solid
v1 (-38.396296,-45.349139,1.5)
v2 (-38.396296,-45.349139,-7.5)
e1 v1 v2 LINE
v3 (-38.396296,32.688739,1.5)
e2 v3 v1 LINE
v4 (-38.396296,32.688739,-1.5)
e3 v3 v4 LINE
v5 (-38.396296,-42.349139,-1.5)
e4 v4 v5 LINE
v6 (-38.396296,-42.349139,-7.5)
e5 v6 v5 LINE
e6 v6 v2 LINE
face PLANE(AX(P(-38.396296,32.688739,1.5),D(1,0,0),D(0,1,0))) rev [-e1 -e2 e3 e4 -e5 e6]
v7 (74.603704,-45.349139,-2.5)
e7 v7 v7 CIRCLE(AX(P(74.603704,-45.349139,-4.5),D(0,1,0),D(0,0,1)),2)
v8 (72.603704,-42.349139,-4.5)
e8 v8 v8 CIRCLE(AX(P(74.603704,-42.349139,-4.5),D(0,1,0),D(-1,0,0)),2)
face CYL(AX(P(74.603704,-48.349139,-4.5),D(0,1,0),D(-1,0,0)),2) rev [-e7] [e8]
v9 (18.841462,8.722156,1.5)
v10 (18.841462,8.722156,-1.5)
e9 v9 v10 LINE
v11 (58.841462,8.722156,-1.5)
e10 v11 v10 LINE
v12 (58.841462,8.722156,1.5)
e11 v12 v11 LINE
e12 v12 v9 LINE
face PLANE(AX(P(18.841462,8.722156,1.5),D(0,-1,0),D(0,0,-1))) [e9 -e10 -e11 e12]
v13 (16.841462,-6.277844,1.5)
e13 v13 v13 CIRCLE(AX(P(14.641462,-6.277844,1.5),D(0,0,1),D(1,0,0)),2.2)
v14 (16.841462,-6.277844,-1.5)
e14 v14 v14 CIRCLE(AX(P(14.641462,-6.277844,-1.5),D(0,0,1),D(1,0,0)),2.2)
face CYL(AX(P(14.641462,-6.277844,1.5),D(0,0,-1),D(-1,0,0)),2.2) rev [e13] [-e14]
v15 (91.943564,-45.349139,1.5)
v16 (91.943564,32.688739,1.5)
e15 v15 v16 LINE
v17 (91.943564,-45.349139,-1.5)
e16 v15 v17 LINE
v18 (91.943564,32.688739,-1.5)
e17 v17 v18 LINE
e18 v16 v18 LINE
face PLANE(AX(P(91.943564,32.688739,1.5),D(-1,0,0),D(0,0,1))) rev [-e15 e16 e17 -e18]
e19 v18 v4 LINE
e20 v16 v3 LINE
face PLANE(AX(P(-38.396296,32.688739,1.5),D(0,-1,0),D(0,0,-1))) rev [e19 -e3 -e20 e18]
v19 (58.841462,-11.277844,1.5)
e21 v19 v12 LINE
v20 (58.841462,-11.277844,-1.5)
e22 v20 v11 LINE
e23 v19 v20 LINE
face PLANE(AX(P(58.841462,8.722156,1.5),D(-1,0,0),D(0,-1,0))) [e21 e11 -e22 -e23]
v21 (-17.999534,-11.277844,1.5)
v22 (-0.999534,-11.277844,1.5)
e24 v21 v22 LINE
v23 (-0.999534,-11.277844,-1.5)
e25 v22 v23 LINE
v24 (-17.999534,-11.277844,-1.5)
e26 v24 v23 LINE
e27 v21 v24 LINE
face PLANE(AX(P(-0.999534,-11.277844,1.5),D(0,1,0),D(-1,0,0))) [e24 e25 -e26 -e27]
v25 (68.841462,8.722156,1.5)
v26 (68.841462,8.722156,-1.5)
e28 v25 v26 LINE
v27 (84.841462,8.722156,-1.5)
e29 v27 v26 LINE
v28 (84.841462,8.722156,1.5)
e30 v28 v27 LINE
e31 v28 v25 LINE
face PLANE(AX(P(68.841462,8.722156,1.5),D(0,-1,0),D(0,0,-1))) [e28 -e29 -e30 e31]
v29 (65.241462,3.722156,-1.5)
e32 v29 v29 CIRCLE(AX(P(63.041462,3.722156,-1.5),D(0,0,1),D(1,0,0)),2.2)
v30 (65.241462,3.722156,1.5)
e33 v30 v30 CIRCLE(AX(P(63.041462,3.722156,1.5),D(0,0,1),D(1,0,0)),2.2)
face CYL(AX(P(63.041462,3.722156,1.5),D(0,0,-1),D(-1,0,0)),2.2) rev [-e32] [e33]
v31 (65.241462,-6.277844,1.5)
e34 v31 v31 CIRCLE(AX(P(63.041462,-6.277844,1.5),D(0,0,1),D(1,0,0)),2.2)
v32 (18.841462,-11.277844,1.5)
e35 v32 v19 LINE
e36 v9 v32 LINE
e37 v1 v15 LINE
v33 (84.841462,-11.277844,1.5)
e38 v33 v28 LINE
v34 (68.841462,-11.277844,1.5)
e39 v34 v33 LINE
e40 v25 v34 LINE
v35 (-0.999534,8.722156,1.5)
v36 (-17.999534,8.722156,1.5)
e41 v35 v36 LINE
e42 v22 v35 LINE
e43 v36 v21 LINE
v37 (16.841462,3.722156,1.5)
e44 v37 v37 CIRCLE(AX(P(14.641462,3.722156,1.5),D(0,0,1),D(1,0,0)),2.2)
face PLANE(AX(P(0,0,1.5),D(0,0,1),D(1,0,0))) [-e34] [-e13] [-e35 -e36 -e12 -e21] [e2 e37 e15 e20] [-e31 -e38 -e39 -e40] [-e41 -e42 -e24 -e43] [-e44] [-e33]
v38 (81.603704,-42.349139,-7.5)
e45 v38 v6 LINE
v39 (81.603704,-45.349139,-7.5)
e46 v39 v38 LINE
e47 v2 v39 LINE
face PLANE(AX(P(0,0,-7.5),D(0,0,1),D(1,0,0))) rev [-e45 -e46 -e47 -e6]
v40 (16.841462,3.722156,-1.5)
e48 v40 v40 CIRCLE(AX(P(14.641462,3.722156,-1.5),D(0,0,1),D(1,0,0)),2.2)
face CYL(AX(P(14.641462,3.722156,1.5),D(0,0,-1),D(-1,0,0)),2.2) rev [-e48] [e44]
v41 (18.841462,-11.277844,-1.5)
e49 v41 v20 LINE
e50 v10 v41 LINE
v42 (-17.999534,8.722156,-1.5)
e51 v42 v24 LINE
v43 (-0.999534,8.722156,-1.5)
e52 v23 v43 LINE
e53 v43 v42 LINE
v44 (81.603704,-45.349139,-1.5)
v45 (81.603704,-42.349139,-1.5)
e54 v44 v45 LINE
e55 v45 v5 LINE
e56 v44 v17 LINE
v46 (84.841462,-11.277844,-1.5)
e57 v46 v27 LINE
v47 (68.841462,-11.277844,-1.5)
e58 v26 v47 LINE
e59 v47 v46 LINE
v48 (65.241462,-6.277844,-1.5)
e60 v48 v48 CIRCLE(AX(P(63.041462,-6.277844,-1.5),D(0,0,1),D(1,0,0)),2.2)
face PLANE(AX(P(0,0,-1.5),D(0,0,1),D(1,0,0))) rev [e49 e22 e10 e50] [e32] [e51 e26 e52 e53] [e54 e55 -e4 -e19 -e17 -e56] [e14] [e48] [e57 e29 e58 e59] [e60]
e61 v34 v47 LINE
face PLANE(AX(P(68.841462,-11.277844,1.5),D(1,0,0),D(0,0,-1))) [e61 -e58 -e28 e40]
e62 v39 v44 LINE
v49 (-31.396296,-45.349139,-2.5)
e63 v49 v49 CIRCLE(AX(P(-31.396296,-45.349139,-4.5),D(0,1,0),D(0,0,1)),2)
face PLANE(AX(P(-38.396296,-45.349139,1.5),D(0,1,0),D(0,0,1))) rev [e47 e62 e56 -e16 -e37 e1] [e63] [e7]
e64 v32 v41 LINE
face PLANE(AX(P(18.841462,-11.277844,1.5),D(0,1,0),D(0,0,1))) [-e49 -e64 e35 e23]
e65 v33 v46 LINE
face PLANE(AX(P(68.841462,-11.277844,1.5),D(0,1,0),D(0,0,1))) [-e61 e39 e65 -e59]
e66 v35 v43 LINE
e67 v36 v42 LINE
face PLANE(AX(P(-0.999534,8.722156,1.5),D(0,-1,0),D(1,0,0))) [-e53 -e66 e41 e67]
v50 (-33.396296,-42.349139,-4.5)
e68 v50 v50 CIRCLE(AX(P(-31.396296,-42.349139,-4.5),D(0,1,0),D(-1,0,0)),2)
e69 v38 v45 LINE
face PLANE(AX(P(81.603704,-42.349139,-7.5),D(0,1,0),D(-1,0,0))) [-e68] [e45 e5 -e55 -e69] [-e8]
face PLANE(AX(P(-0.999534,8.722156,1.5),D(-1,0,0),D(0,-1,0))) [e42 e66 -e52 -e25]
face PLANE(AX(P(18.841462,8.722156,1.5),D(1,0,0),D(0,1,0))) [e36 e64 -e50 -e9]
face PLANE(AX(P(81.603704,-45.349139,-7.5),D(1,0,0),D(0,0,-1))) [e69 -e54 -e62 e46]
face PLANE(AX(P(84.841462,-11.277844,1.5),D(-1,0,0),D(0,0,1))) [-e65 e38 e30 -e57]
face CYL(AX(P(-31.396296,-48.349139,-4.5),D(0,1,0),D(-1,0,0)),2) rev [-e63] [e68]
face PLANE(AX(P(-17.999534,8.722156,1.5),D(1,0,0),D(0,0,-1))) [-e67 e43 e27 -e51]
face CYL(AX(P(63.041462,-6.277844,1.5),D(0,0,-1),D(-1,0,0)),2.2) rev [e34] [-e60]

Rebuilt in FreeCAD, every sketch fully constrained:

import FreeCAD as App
import Part
import Sketcher
from FreeCAD import Vector


def add_polygon(sketch, points):
    """Adds a closed chain of lines whose ends are joined by coincident constraints."""
    first, n = sketch.GeometryCount, len(points)
    for a, b in zip(points, points[1:] + points[:1]):
        sketch.addGeometry(Part.LineSegment(App.Vector(*a, 0), App.Vector(*b, 0)), False)
    for i in range(n):
        sketch.addConstraint(Sketcher.Constraint("Coincident", first + i, 2, first + (i + 1) % n, 1))

doc = App.newDocument("Part")
params = doc.addObject("Spreadsheet::Sheet", "Params")
for row, (alias, value) in enumerate([
    ("sketch1_diameter", "4.4 mm"),
    ("sketch1_width", "17 mm"),
    ("sketch1_width2", "40 mm"),
    ("sketch1_width3", "16 mm"),
    ("sketch1_height", "20 mm"),
    ("pad1_length", "3 mm"),
    ("sketch2_width", "120 mm"),
    ("sketch2_height", "3 mm"),
    ("pad2_length", "9 mm"),
    ("sketch3_diameter", "4 mm"),
    ("pocket1_length", "6 mm"),
], start=1):
    params.set(f"A{row}", alias)
    params.set(f"B{row}", "=" + value)
    params.setAlias(f"B{row}", alias)

body = doc.addObject("PartDesign::Body", "Body")

# Sketch on XY plane
sketch1 = doc.addObject("Sketcher::SketchObject", "Sketch")
body.addObject(sketch1)
sketch1.AttachmentSupport = (doc.XY_Plane, [""])
sketch1.MapMode = "FlatFace"
add_polygon(sketch1, [(-38.396296, 32.688739), (-38.396296, -45.349139), (91.943564, -45.349139), (91.943564, 32.688739)])  # lines 0-3
add_polygon(sketch1, [(-0.999534, -11.277844), (-17.999534, -11.277844), (-17.999534, 8.722156), (-0.999534, 8.722156)])  # lines 4-7
sketch1.addGeometry(Part.Circle(Vector(14.641462, -6.277844, 0), Vector(0, 0, 1), 2.2), False)  # 8
sketch1.addGeometry(Part.Circle(Vector(63.041462, -6.277844, 0), Vector(0, 0, 1), 2.2), False)  # 9
sketch1.addGeometry(Part.Circle(Vector(14.641462, 3.722156, 0), Vector(0, 0, 1), 2.2), False)  # 10
add_polygon(sketch1, [(58.841462, -11.277844), (18.841462, -11.277844), (18.841462, 8.722156), (58.841462, 8.722156)])  # lines 11-14
add_polygon(sketch1, [(84.841462, -11.277844), (68.841462, -11.277844), (68.841462, 8.722156), (84.841462, 8.722156)])  # lines 15-18
sketch1.addGeometry(Part.Circle(Vector(63.041462, 3.722156, 0), Vector(0, 0, 1), 2.2), False)  # 19
sketch1.addConstraint([
    Sketcher.Constraint("Vertical", 0),
    Sketcher.Constraint("Horizontal", 1),
    Sketcher.Constraint("Vertical", 2),
    Sketcher.Constraint("Horizontal", 3),
    Sketcher.Constraint("Horizontal", 4),
    Sketcher.Constraint("Vertical", 5),
    Sketcher.Constraint("Horizontal", 6),
    Sketcher.Constraint("Vertical", 7),
    Sketcher.Constraint("Horizontal", 11),
    Sketcher.Constraint("Vertical", 12),
    Sketcher.Constraint("Horizontal", 13),
    Sketcher.Constraint("Vertical", 14),
    Sketcher.Constraint("Horizontal", 15),
    Sketcher.Constraint("Vertical", 16),
    Sketcher.Constraint("Horizontal", 17),
    Sketcher.Constraint("Vertical", 18),
    Sketcher.Constraint("Equal", 8, 9),
    Sketcher.Constraint("Equal", 9, 10),
    Sketcher.Constraint("Equal", 10, 19),
    Sketcher.Constraint("Horizontal", 8, 3, 9, 3),
    Sketcher.Constraint("Horizontal", 10, 3, 19, 3),
    Sketcher.Constraint("Horizontal", 7, 2, 11, 2),
    Sketcher.Constraint("Horizontal", 6, 2, 12, 2),
    Sketcher.Constraint("Horizontal", 14, 2, 15, 2),
    Sketcher.Constraint("Horizontal", 13, 2, 16, 2),
    Sketcher.Constraint("Vertical", 8, 3, 10, 3),
    Sketcher.Constraint("Vertical", 9, 3, 19, 3),
    Sketcher.Constraint("Diameter", 8, 4.4),
    Sketcher.Constraint("DistanceX", 4, 2, 4, 1, 17.0),
    Sketcher.Constraint("DistanceX", 11, 2, 11, 1, 40.0),
    Sketcher.Constraint("DistanceX", 15, 2, 15, 1, 16.0),
    Sketcher.Constraint("DistanceY", 5, 1, 5, 2, 20.0),
    Sketcher.Constraint("DistanceY", 8, 3, 10, 3, 10.0),
    Sketcher.Constraint("DistanceY", 4, 2, 8, 3, 5.0),
    Sketcher.Constraint("DistanceX", 14, 2, 15, 2, 10.0),
    Sketcher.Constraint("DistanceX", 8, 3, 9, 3, 48.4),
    Sketcher.Constraint("DistanceX", 8, 3, 11, 2, 4.2),
    Sketcher.Constraint("DistanceX", 1, 1, 1, 2, 130.33986),
    Sketcher.Constraint("DistanceX", 9, 3, 1, 2, 28.902102),
    Sketcher.Constraint("DistanceY", 0, 2, 0, 1, 78.037878),
    Sketcher.Constraint("DistanceX", -1, 1, 8, 3, 14.641462),
    Sketcher.Constraint("DistanceY", 0, 2, -1, 1, 45.349139),
    Sketcher.Constraint("DistanceY", 8, 3, -1, 1, 6.277844),
    Sketcher.Constraint("DistanceX", 4, 2, -1, 1, 17.999534),
])
sketch1.setExpression("Constraints[43]", "Params.sketch1_diameter")
sketch1.setExpression("Constraints[44]", "Params.sketch1_width")
sketch1.setExpression("Constraints[45]", "Params.sketch1_width2")
sketch1.setExpression("Constraints[46]", "Params.sketch1_width3")
sketch1.setExpression("Constraints[47]", "Params.sketch1_height")
pad1 = doc.addObject("PartDesign::Pad", "Pad")
body.addObject(pad1)
pad1.Profile = sketch1
pad1.setExpression("Length", "Params.pad1_length")
pad1.Midplane = True

# Sketch on XY plane
sketch2 = doc.addObject("Sketcher::SketchObject", "Sketch001")
body.addObject(sketch2)
sketch2.AttachmentSupport = (doc.XY_Plane, [""])
sketch2.MapMode = "FlatFace"
sketch2.AttachmentOffset = App.Placement(Vector(0, 0, 1.5), App.Rotation())
add_polygon(sketch2, [(-38.396296, -42.349139), (-38.396296, -45.349139), (81.603704, -45.349139), (81.603704, -42.349139)])  # lines 0-3
sketch2.addConstraint([
    Sketcher.Constraint("Vertical", 0),
    Sketcher.Constraint("Horizontal", 1),
    Sketcher.Constraint("Vertical", 2),
    Sketcher.Constraint("Horizontal", 3),
    Sketcher.Constraint("DistanceX", 1, 1, 1, 2, 120.0),
    Sketcher.Constraint("DistanceY", 0, 2, 0, 1, 3.0),
    Sketcher.Constraint("DistanceY", 0, 2, -1, 1, 45.349139),
    Sketcher.Constraint("DistanceX", 0, 2, -1, 1, 38.396296),
])
sketch2.setExpression("Constraints[8]", "Params.sketch2_width")
sketch2.setExpression("Constraints[9]", "Params.sketch2_height")
pad2 = doc.addObject("PartDesign::Pad", "Pad001")
body.addObject(pad2)
pad2.Profile = sketch2
pad2.setExpression("Length", "Params.pad2_length")
pad2.Reversed = True

# Sketch on XZ plane
sketch3 = doc.addObject("Sketcher::SketchObject", "Sketch002")
body.addObject(sketch3)
sketch3.AttachmentSupport = (doc.XZ_Plane, [""])
sketch3.MapMode = "FlatFace"
sketch3.AttachmentOffset = App.Placement(Vector(0, 0, 42.349139), App.Rotation())
sketch3.addGeometry([
    Part.Circle(Vector(-31.396296, -4.5, 0), Vector(0, 0, 1), 2),
    Part.Circle(Vector(74.603704, -4.5, 0), Vector(0, 0, 1), 2),
], False)
sketch3.addConstraint([
    Sketcher.Constraint("Equal", 0, 1),
    Sketcher.Constraint("Horizontal", 0, 3, 1, 3),
    Sketcher.Constraint("Diameter", 0, 4.0),
    Sketcher.Constraint("DistanceX", 0, 3, 1, 3, 106.0),
    Sketcher.Constraint("DistanceY", 0, 3, -1, 1, 4.5),
    Sketcher.Constraint("DistanceX", 0, 3, -1, 1, 31.396296),
])
sketch3.setExpression("Constraints[2]", "Params.sketch3_diameter")
pocket1 = doc.addObject("PartDesign::Pocket", "Pocket")
body.addObject(pocket1)
pocket1.Profile = sketch3
pocket1.setExpression("Length", "Params.pocket1_length")
pocket1.Reversed = True

doc.recompute()
